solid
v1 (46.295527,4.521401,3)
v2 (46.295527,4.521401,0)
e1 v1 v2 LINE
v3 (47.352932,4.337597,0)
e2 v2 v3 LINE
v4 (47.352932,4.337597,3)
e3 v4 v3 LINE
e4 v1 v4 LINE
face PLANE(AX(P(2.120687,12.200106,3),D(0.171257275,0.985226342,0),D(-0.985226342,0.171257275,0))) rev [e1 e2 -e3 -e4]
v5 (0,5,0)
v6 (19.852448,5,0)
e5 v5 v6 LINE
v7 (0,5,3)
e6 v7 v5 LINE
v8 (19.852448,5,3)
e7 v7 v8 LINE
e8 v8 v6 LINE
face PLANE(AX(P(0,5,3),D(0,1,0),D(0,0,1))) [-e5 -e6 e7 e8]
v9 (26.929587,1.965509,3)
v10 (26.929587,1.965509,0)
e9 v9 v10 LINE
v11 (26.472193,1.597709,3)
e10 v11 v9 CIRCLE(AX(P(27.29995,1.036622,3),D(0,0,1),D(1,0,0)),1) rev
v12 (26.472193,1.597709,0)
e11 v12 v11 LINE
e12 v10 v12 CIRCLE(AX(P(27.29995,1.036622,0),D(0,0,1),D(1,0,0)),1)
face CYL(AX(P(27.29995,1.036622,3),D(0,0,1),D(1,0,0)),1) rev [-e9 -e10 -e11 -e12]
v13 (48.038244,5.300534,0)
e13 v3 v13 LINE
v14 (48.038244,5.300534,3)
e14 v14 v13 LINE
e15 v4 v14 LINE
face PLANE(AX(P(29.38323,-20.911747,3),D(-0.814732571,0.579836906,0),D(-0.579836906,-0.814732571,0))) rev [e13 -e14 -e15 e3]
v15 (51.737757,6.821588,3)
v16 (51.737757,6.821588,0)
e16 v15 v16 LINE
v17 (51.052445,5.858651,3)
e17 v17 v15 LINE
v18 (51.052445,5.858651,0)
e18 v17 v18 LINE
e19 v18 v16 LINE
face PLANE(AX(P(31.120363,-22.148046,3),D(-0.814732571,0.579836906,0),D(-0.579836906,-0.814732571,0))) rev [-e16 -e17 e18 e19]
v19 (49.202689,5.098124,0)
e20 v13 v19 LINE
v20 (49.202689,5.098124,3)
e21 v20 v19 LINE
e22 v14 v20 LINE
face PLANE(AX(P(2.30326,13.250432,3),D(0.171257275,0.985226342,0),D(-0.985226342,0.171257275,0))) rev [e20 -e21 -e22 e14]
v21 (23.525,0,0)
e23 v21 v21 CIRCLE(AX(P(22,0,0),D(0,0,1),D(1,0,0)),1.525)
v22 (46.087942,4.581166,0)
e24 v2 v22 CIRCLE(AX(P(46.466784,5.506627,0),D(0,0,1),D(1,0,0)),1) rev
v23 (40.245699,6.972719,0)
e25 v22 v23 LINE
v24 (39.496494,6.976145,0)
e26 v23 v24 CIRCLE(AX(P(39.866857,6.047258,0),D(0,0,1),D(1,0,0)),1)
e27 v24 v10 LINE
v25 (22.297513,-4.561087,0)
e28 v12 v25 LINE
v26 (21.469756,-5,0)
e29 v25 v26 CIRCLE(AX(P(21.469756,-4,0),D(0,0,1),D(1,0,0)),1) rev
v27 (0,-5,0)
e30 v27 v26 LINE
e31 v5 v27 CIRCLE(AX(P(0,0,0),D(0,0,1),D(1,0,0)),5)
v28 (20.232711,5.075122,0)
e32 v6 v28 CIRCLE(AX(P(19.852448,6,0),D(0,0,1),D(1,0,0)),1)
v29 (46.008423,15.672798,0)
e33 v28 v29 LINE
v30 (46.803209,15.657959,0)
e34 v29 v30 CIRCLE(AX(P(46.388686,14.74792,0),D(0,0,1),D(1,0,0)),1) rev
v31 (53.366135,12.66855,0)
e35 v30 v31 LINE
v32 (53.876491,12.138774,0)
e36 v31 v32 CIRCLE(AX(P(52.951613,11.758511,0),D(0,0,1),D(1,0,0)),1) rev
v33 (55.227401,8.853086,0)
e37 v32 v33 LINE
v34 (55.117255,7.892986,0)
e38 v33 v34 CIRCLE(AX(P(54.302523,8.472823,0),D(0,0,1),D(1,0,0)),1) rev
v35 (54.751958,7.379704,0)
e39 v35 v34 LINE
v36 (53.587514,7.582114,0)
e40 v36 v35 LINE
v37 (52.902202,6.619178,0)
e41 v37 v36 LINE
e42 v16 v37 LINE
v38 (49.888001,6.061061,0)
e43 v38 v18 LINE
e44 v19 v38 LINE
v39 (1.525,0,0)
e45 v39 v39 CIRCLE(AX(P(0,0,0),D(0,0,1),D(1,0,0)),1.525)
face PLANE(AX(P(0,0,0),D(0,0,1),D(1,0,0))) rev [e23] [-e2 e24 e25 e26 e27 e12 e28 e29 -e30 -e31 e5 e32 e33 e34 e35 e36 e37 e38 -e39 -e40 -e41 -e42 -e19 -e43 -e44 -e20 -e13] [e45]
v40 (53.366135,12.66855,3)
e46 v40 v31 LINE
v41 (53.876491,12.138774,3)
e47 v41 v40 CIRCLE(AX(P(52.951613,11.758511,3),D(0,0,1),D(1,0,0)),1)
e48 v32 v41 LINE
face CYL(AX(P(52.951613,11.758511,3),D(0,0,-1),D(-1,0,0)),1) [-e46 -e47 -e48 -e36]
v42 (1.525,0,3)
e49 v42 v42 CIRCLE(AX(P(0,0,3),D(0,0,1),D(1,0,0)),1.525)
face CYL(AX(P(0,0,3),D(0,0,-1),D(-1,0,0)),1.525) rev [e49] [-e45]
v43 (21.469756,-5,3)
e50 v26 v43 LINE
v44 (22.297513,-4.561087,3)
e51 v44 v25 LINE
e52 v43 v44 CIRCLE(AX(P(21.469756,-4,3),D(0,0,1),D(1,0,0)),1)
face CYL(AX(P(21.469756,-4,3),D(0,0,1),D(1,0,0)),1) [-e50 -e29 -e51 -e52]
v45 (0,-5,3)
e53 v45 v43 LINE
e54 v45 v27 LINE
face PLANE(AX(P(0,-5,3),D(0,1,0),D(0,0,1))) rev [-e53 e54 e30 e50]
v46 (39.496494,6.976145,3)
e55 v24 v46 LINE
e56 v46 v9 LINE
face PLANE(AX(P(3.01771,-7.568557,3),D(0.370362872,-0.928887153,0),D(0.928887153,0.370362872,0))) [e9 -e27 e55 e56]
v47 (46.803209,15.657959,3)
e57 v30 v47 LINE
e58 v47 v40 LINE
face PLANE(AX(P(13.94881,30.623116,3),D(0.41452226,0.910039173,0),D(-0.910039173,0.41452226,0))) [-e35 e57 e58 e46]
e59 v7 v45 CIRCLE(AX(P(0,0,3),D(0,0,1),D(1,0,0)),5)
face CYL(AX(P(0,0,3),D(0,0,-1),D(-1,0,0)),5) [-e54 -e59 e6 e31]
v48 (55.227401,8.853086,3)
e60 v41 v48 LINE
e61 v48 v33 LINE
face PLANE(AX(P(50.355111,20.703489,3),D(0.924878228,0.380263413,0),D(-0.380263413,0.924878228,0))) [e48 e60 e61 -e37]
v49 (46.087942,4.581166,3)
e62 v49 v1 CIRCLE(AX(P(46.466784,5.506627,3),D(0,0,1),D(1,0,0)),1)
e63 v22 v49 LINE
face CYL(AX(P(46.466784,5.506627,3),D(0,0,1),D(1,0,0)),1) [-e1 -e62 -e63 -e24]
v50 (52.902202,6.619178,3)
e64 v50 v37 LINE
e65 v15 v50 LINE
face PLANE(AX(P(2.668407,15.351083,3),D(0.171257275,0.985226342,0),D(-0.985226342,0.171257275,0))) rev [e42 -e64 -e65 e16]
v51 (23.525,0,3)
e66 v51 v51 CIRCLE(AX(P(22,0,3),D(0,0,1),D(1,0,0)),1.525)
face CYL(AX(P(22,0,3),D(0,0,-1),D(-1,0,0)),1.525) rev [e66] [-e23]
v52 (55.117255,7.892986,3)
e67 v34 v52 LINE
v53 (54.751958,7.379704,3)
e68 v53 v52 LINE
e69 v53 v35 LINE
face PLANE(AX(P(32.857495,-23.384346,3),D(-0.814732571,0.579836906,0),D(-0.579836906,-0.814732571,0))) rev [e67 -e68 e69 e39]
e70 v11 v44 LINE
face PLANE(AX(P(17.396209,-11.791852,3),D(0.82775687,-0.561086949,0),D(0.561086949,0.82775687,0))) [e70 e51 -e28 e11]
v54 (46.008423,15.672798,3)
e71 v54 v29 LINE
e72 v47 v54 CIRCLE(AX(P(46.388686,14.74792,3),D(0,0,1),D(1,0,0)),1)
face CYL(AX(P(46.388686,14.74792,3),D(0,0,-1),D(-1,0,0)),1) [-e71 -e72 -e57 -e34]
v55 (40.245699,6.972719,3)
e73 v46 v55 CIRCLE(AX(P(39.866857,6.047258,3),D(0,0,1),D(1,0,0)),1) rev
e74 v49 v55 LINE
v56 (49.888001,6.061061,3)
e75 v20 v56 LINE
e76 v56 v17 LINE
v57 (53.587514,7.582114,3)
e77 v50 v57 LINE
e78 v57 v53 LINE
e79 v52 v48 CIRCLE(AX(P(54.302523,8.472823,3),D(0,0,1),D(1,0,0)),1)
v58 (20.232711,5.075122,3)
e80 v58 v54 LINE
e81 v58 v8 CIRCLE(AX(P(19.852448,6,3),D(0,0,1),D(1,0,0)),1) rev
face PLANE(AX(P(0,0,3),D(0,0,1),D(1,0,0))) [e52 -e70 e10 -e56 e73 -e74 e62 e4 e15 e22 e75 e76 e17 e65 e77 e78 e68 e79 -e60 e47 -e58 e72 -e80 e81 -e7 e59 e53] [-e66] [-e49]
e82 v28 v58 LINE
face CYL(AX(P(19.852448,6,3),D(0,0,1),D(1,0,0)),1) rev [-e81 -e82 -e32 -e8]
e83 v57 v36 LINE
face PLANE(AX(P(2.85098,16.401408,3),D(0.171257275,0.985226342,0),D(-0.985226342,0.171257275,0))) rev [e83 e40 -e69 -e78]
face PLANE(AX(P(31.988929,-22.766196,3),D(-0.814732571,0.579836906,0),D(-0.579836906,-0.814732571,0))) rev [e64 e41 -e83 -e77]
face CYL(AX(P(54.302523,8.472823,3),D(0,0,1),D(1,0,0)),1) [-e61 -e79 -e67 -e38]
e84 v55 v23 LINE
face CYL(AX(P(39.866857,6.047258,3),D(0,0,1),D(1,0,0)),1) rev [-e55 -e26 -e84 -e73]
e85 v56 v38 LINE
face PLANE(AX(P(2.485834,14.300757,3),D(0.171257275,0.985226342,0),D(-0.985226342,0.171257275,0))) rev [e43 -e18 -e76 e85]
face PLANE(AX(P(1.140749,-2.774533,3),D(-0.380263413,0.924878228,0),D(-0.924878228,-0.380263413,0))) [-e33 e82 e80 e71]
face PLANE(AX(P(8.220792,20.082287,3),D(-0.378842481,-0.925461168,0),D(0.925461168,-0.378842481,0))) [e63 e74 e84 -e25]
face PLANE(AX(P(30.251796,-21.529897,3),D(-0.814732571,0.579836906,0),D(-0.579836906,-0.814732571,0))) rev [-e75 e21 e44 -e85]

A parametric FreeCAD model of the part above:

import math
import FreeCAD as App
import Part
import Sketcher

V = App.Vector
Q = App.Units.Quantity


def edges_at(feature, points):
    """Names of the edges that pass closest to the given points."""
    edges = feature.Shape.Edges
    near = lambda p: min(range(len(edges)), key=lambda i: edges[i].distToShape(Part.Vertex(*p))[0])
    return sorted({f"Edge{near(p) + 1}" for p in points})

doc = App.newDocument("Part")
body = doc.addObject("PartDesign::Body", "Body")

sketch1 = doc.addObject("Sketcher::SketchObject", "Sketch")
body.addObject(sketch1)
sketch1.AttachmentSupport = (doc.XY_Plane, [""])
sketch1.MapMode = "FlatFace"
sketch1.addGeometry([
    Part.ArcOfCircle(Part.Circle(V(0, 0, 0), V(0, 0, 1), 5), math.radians(90), math.radians(270)),
    Part.LineSegment(V(0, -5, 0), V(22, -5, 0)),
    Part.LineSegment(V(22, -5, 0), V(26.644436, 1.851814, 0)),
    Part.LineSegment(V(26.644436, 1.851814, 0), V(39.871789, 7.125782, 0)),
    Part.LineSegment(V(39.871789, 7.125782, 0), V(46.188488, 4.540007, 0)),
    Part.LineSegment(V(46.188488, 4.540007, 0), V(47.352932, 4.337597, 0)),
    Part.LineSegment(V(47.352932, 4.337597, 0), V(48.038244, 5.300534, 0)),
    Part.LineSegment(V(48.038244, 5.300534, 0), V(49.202689, 5.098124, 0)),
    Part.LineSegment(V(49.202689, 5.098124, 0), V(49.888001, 6.061061, 0)),
    Part.LineSegment(V(49.888001, 6.061061, 0), V(51.052445, 5.858651, 0)),
    Part.LineSegment(V(51.052445, 5.858651, 0), V(51.737757, 6.821588, 0)),
    Part.LineSegment(V(51.737757, 6.821588, 0), V(52.902202, 6.619178, 0)),
    Part.LineSegment(V(52.902202, 6.619178, 0), V(53.587514, 7.582114, 0)),
    Part.LineSegment(V(53.587514, 7.582114, 0), V(54.751958, 7.379704, 0)),
    Part.LineSegment(V(54.751958, 7.379704, 0), V(55.43727, 8.342641, 0)),
    Part.LineSegment(V(55.43727, 8.342641, 0), V(53.726085, 12.504593, 0)),
    Part.LineSegment(V(53.726085, 12.504593, 0), V(46.40903, 15.837507, 0)),
    Part.LineSegment(V(46.40903, 15.837507, 0), V(20.05, 5, 0)),
    Part.LineSegment(V(20.05, 5, 0), V(0, 5, 0)),
    Part.Circle(V(0, 0, 0), V(0, 0, 1), 1.525),
    Part.Circle(V(22, 0, 0), V(0, 0, 1), 1.525),
], False)
sketch1.addConstraint([
    Sketcher.Constraint("Tangent", 0, 2, 1, 1),
    Sketcher.Constraint("Coincident", 1, 2, 2, 1),
    Sketcher.Constraint("Coincident", 2, 2, 3, 1),
    Sketcher.Constraint("Coincident", 3, 2, 4, 1),
    Sketcher.Constraint("Coincident", 4, 2, 5, 1),
    Sketcher.Constraint("Coincident", 5, 2, 6, 1),
    Sketcher.Constraint("Coincident", 6, 2, 7, 1),
    Sketcher.Constraint("Coincident", 7, 2, 8, 1),
    Sketcher.Constraint("Coincident", 8, 2, 9, 1),
    Sketcher.Constraint("Coincident", 9, 2, 10, 1),
    Sketcher.Constraint("Coincident", 10, 2, 11, 1),
    Sketcher.Constraint("Coincident", 11, 2, 12, 1),
    Sketcher.Constraint("Coincident", 12, 2, 13, 1),
    Sketcher.Constraint("Coincident", 13, 2, 14, 1),
    Sketcher.Constraint("Coincident", 14, 2, 15, 1),
    Sketcher.Constraint("Coincident", 15, 2, 16, 1),
    Sketcher.Constraint("Coincident", 16, 2, 17, 1),
    Sketcher.Constraint("Coincident", 17, 2, 18, 1),
    Sketcher.Constraint("Tangent", 18, 2, 0, 1),
    Sketcher.Constraint("Horizontal", 1),
    Sketcher.Constraint("Horizontal", 18),
    Sketcher.Constraint("Coincident", 0, 3, -1, 1),
    Sketcher.Constraint("Coincident", 19, 3, -1, 1),
    Sketcher.Constraint("Equal", 19, 20),
    Sketcher.Constraint("PointOnObject", 20, 3, -1),
    Sketcher.Constraint("Parallel", 5, 7),
    Sketcher.Constraint("Parallel", 6, 8),
    Sketcher.Constraint("Parallel", 7, 9),
    Sketcher.Constraint("Parallel", 8, 10),
    Sketcher.Constraint("Parallel", 9, 11),
    Sketcher.Constraint("Parallel", 10, 12),
    Sketcher.Constraint("Parallel", 11, 13),
    Sketcher.Constraint("Parallel", 12, 14),
    Sketcher.Constraint("Perpendicular", 15, 17),
    Sketcher.Constraint("Vertical", 20, 3, 1, 2),
    Sketcher.Constraint("Equal", 5, 6),
    Sketcher.Constraint("Equal", 6, 7),
    Sketcher.Constraint("Equal", 7, 8),
    Sketcher.Constraint("Equal", 8, 9),
    Sketcher.Constraint("Equal", 9, 10),
    Sketcher.Constraint("Equal", 10, 11),
    Sketcher.Constraint("Equal", 11, 12),
    Sketcher.Constraint("Equal", 12, 13),
    Sketcher.Constraint("Equal", 13, 14),
    Sketcher.Constraint("Radius", 0, Q("5 mm")),
    Sketcher.Constraint("Diameter", 19, Q("3.05 mm")),
    Sketcher.Constraint("DistanceX", 1, 1, 1, 2, Q("22 mm")),
    Sketcher.Constraint("Distance", 15, Q("4.5 mm")),
    Sketcher.Constraint("Distance", 17, Q("28.5 mm")),
    Sketcher.Constraint("DistanceX", 18, 2, 18, 1, Q("20.05 mm")),
    Sketcher.Constraint("Angle", 15, Q("112.35 deg")),
    Sketcher.Constraint("Distance", 3, Q("14.24 mm")),
    Sketcher.Constraint("DistanceX", -1, 1, 8, 2, Q("49.888001 mm")),
    Sketcher.Constraint("DistanceX", -1, 1, 11, 2, Q("52.902202 mm")),
    Sketcher.Constraint("DistanceX", 3, 2, 4, 2, Q("6.316699 mm")),
    Sketcher.Constraint("Distance", 2, Q("8.277569 mm")),
    Sketcher.Constraint("Distance", 4, Q("6.825461 mm")),
    Sketcher.Constraint("DistanceX", -1, 1, 3, 2, Q("39.871789 mm")),
    Sketcher.Constraint("DistanceY", -1, 1, 3, 2, Q("7.125782 mm")),
    Sketcher.Constraint("DistanceY", -1, 1, 8, 2, Q("6.061061 mm")),
])
pad1 = doc.addObject("PartDesign::Pad", "Pad")
body.addObject(pad1)
pad1.Profile = sketch1
pad1.Length = 3
doc.recompute()

fillet = doc.addObject("PartDesign::Fillet", "Fillet")
body.addObject(fillet)
fillet.Base = (pad1, edges_at(pad1, [
    (22, -5, 1.5),
    (20.05, 5, 1.5),
    (46.409, 15.838, 1.5),
    (53.726, 12.505, 1.5),
    (55.437, 8.343, 1.5),
    (46.188, 4.54, 1.5),
    (39.872, 7.126, 1.5),
    (26.644, 1.852, 1.5),
]))
fillet.Radius = 1

doc.recompute()
